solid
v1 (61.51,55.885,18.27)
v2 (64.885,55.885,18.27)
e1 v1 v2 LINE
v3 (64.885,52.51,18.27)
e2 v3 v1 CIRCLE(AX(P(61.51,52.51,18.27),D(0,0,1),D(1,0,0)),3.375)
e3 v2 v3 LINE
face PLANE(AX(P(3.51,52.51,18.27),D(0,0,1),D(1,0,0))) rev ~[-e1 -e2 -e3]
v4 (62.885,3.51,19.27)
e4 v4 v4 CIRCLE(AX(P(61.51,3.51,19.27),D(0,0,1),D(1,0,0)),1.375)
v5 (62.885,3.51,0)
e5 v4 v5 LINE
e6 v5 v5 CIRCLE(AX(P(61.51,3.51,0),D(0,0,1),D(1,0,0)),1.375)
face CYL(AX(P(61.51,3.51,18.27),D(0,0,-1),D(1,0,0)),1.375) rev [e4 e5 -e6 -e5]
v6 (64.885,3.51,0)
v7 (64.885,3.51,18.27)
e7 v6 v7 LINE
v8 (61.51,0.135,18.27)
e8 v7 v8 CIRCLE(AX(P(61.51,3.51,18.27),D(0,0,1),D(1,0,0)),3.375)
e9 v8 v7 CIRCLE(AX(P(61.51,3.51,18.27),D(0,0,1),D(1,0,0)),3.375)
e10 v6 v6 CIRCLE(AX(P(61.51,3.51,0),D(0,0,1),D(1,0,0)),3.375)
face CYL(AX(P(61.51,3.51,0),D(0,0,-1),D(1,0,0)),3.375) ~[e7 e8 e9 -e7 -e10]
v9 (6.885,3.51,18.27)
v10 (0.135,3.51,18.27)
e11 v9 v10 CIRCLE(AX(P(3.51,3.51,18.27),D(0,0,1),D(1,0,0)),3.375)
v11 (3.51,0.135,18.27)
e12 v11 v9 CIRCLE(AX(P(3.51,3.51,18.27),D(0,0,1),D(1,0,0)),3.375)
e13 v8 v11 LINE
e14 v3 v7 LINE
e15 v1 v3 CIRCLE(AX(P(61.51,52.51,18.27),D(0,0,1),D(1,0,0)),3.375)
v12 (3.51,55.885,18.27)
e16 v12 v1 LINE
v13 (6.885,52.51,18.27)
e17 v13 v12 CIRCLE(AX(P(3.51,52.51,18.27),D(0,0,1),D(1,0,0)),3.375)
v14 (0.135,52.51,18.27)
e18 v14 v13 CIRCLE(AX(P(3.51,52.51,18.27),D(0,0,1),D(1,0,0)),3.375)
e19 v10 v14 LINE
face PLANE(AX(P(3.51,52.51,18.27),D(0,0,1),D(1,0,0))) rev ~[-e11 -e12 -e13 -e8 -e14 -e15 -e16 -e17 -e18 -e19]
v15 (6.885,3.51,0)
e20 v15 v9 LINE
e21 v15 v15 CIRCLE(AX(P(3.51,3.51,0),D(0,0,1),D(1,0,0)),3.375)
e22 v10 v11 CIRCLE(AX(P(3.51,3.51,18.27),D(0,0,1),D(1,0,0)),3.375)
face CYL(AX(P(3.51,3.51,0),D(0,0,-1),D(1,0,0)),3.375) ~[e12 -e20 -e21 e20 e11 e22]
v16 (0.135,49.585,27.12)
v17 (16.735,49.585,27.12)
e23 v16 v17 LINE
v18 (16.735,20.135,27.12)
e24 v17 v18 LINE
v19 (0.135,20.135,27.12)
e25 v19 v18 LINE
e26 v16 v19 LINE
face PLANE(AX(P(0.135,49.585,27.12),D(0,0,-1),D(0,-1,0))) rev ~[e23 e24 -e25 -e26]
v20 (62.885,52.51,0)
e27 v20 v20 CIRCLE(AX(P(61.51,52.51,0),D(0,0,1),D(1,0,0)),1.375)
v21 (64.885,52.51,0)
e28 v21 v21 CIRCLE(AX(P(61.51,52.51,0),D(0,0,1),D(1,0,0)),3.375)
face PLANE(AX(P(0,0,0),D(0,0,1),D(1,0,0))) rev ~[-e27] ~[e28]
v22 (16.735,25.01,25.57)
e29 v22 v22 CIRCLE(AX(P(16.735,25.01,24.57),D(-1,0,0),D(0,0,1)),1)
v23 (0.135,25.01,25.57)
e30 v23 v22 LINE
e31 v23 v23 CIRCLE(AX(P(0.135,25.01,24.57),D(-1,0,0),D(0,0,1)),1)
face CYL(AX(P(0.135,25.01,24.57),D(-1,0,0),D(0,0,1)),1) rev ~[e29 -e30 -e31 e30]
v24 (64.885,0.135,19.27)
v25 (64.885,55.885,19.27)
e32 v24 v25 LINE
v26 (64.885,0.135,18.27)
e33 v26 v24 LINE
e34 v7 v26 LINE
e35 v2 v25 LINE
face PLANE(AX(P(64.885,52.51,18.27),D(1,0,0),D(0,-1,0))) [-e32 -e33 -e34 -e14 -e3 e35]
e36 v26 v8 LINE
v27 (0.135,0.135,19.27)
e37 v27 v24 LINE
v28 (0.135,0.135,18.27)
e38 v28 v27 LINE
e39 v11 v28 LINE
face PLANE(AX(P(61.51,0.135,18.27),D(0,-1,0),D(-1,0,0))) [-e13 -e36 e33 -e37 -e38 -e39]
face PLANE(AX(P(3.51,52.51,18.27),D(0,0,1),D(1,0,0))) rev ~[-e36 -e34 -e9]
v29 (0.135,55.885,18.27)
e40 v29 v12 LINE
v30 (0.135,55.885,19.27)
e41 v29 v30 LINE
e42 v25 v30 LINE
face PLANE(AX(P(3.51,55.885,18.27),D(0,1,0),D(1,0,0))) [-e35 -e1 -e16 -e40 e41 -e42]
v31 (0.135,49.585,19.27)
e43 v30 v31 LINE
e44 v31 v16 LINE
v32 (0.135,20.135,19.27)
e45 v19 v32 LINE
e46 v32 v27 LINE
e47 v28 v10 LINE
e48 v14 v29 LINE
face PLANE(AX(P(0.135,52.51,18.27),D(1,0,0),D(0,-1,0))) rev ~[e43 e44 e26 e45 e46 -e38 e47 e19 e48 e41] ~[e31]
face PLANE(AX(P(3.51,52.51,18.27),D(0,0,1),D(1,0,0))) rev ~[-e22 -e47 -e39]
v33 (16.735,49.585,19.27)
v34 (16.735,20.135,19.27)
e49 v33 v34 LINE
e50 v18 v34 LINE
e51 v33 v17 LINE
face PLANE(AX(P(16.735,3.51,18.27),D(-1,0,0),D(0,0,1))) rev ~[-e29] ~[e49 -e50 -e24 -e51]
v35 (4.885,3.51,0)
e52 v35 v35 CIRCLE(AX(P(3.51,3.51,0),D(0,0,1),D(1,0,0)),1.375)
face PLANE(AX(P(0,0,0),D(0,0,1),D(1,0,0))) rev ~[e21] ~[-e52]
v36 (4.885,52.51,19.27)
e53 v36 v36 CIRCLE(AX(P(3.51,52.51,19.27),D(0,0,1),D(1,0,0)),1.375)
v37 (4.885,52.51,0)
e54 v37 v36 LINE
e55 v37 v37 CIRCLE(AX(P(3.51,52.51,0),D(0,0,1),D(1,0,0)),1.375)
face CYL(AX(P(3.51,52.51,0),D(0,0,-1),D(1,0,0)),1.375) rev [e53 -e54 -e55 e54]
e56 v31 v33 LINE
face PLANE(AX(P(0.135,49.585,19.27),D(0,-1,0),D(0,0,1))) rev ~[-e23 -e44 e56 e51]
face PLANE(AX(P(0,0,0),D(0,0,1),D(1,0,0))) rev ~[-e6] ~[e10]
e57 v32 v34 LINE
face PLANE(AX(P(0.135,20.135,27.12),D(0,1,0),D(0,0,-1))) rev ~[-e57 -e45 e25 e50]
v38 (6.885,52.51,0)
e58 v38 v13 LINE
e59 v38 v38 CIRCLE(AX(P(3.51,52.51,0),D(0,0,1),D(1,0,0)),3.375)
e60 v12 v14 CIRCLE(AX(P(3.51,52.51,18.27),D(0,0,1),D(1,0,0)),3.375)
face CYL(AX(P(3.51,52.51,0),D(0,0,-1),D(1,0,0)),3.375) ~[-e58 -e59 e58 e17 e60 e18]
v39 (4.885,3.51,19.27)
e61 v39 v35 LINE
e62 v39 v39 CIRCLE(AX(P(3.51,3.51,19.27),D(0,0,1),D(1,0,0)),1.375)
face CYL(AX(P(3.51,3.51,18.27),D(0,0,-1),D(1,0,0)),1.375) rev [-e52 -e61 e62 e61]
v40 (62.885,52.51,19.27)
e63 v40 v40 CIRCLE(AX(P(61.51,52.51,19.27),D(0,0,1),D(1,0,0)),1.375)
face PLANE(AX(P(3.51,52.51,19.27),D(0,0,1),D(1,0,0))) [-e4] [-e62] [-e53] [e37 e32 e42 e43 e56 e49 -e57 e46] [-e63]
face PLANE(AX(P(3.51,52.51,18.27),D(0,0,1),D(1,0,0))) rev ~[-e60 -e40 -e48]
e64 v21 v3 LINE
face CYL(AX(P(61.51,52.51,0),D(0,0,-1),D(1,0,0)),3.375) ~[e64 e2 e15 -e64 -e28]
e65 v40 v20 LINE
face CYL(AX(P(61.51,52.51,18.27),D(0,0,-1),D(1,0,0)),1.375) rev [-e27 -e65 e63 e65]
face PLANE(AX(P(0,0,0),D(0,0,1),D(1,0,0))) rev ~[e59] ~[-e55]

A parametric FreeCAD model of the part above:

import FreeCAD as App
import Part
import Sketcher

doc = App.newDocument("Part")
params = doc.addObject("Spreadsheet::Sheet", "Params")
for row, (alias, value) in enumerate([
    ("sketch1_diameter", "6.75 mm"),
    ("sketch1_diameter2", "2.75 mm"),
    ("pad1_length", "18.27 mm"),
    ("sketch2_diameter", "2.75 mm"),
    ("sketch2_width", "64.75 mm"),
    ("sketch2_height", "55.75 mm"),
    ("pad2_length", "1 mm"),
    ("sketch3_diameter", "2 mm"),
    ("sketch3_width", "29.45 mm"),
    ("sketch3_height", "7.85 mm"),
    ("pad3_length", "16.6 mm"),
], start=1):
    params.set(f"A{row}", alias)
    params.set(f"B{row}", "=" + value)
    params.setAlias(f"B{row}", alias)

body = doc.addObject("PartDesign::Body", "Body")
body.AllowCompound = True

# Sketch on XY plane
sketch1 = body.newObject("Sketcher::SketchObject", "Sketch")
sketch1.AttachmentSupport = (doc.getObject("XY_Plane"), [""])
sketch1.MapMode = "FlatFace"
sketch1.addGeometry([
    Part.Circle(App.Vector(3.5, 52.5, 0), App.Vector(0, 0, 1), 3.4),  # 0
    Part.Circle(App.Vector(3.5, 52.5, 0), App.Vector(0, 0, 1), 1.4),  # 1
    Part.Circle(App.Vector(3.5, 3.5, 0), App.Vector(0, 0, 1), 3.4),  # 2
    Part.Circle(App.Vector(3.5, 3.5, 0), App.Vector(0, 0, 1), 1.4),  # 3
    Part.Circle(App.Vector(61.5, 52.5, 0), App.Vector(0, 0, 1), 3.4),  # 4
    Part.Circle(App.Vector(61.5, 52.5, 0), App.Vector(0, 0, 1), 1.4),  # 5
    Part.Circle(App.Vector(61.5, 3.5, 0), App.Vector(0, 0, 1), 3.4),  # 6
    Part.Circle(App.Vector(61.5, 3.5, 0), App.Vector(0, 0, 1), 1.4),  # 7
], False)
sketch1.addConstraint([
    Sketcher.Constraint("Coincident", 1, 3, 0, 3),
    Sketcher.Constraint("Coincident", 3, 3, 2, 3),
    Sketcher.Constraint("Coincident", 5, 3, 4, 3),
    Sketcher.Constraint("Coincident", 7, 3, 6, 3),
    Sketcher.Constraint("Equal", 0, 2),
    Sketcher.Constraint("Equal", 1, 3),
    Sketcher.Constraint("Equal", 2, 4),
    Sketcher.Constraint("Equal", 3, 5),
    Sketcher.Constraint("Equal", 4, 6),
    Sketcher.Constraint("Equal", 5, 7),
    Sketcher.Constraint("Horizontal", 1, 3, 4, 3),
    Sketcher.Constraint("Horizontal", 3, 3, 6, 3),
    Sketcher.Constraint("Vertical", 1, 3, 2, 3),
    Sketcher.Constraint("Vertical", 5, 3, 6, 3),
    Sketcher.Constraint("Diameter", 0, 6.75),
    Sketcher.Constraint("Diameter", 1, 2.75),
    Sketcher.Constraint("DistanceY", 2, 3, 0, 3, 49.0),
    Sketcher.Constraint("DistanceX", 0, 3, 4, 3, 58.0),
    Sketcher.Constraint("DistanceX", -1, 1, 0, 3, 3.51),
    Sketcher.Constraint("DistanceY", -1, 1, 0, 3, 52.51),
])
sketch1.setExpression("Constraints[14]", "Params.sketch1_diameter")
sketch1.setExpression("Constraints[15]", "Params.sketch1_diameter2")
pad1 = body.newObject("PartDesign::Pad", "Pad")
pad1.Profile = sketch1
pad1.setExpression("Length", "Params.pad1_length")

# Sketch on XY plane
sketch2 = body.newObject("Sketcher::SketchObject", "Sketch001")
sketch2.AttachmentSupport = (doc.getObject("XY_Plane"), [""])
sketch2.MapMode = "FlatFace"
sketch2.AttachmentOffset = App.Placement(App.Vector(0, 0, 18.27), App.Rotation())
sketch2.addGeometry([
    Part.LineSegment(App.Vector(0.1, 0.1, 0), App.Vector(64.9, 0.1, 0)),  # 0
    Part.LineSegment(App.Vector(64.9, 0.1, 0), App.Vector(64.9, 55.9, 0)),  # 1
    Part.LineSegment(App.Vector(64.9, 55.9, 0), App.Vector(0.1, 55.9, 0)),  # 2
    Part.LineSegment(App.Vector(0.1, 55.9, 0), App.Vector(0.1, 0.1, 0)),  # 3
    Part.Circle(App.Vector(3.5, 52.5, 0), App.Vector(0, 0, 1), 1.4),  # 4
    Part.Circle(App.Vector(61.5, 52.5, 0), App.Vector(0, 0, 1), 1.4),  # 5
    Part.Circle(App.Vector(61.5, 3.5, 0), App.Vector(0, 0, 1), 1.4),  # 6
    Part.Circle(App.Vector(3.5, 3.5, 0), App.Vector(0, 0, 1), 1.4),  # 7
], False)
sketch2.addConstraint([
    Sketcher.Constraint("Coincident", 0, 2, 1, 1),
    Sketcher.Constraint("Coincident", 1, 2, 2, 1),
    Sketcher.Constraint("Coincident", 2, 2, 3, 1),
    Sketcher.Constraint("Coincident", 3, 2, 0, 1),
    Sketcher.Constraint("Horizontal", 0),
    Sketcher.Constraint("Vertical", 1),
    Sketcher.Constraint("Horizontal", 2),
    Sketcher.Constraint("Vertical", 3),
    Sketcher.Constraint("Equal", 4, 5),
    Sketcher.Constraint("Equal", 5, 6),
    Sketcher.Constraint("Equal", 6, 7),
    Sketcher.Constraint("Horizontal", 4, 3, 5, 3),
    Sketcher.Constraint("Horizontal", 6, 3, 7, 3),
    Sketcher.Constraint("Vertical", 5, 3, 6, 3),
    Sketcher.Constraint("Vertical", 4, 3, 7, 3),
    Sketcher.Constraint("Diameter", 4, 2.75),
    Sketcher.Constraint("DistanceX", 4, 3, 5, 3, 58.0),
    Sketcher.Constraint("DistanceY", 6, 3, 5, 3, 49.0),
    Sketcher.Constraint("DistanceX", 0, 1, 0, 2, 64.75),
    Sketcher.Constraint("DistanceY", 1, 1, 1, 2, 55.75),
    Sketcher.Constraint("DistanceX", -1, 1, 4, 3, 3.51),
    Sketcher.Constraint("DistanceY", -1, 1, 4, 3, 52.51),
    Sketcher.Constraint("DistanceX", -1, 1, 0, 2, 64.885),
    Sketcher.Constraint("DistanceY", -1, 1, 0, 2, 0.135),
])
sketch2.setExpression("Constraints[15]", "Params.sketch2_diameter")
sketch2.setExpression("Constraints[18]", "Params.sketch2_width")
sketch2.setExpression("Constraints[19]", "Params.sketch2_height")
pad2 = body.newObject("PartDesign::Pad", "Pad001")
pad2.Profile = sketch2
pad2.setExpression("Length", "Params.pad2_length")

# Sketch on YZ plane
sketch3 = body.newObject("Sketcher::SketchObject", "Sketch002")
sketch3.AttachmentSupport = (doc.getObject("YZ_Plane"), [""])
sketch3.MapMode = "FlatFace"
sketch3.AttachmentOffset = App.Placement(App.Vector(0, 0, 0.135), App.Rotation())
sketch3.addGeometry([
    Part.LineSegment(App.Vector(49.6, 27.1, 0), App.Vector(49.6, 19.3, 0)),  # 0
    Part.LineSegment(App.Vector(49.6, 19.3, 0), App.Vector(20.1, 19.3, 0)),  # 1
    Part.LineSegment(App.Vector(20.1, 19.3, 0), App.Vector(20.1, 27.1, 0)),  # 2
    Part.LineSegment(App.Vector(20.1, 27.1, 0), App.Vector(49.6, 27.1, 0)),  # 3
    Part.Circle(App.Vector(25, 24.6, 0), App.Vector(0, 0, 1), 1),  # 4
], False)
sketch3.addConstraint([
    Sketcher.Constraint("Coincident", 0, 2, 1, 1),
    Sketcher.Constraint("Coincident", 1, 2, 2, 1),
    Sketcher.Constraint("Coincident", 2, 2, 3, 1),
    Sketcher.Constraint("Coincident", 3, 2, 0, 1),
    Sketcher.Constraint("Vertical", 0),
    Sketcher.Constraint("Horizontal", 1),
    Sketcher.Constraint("Vertical", 2),
    Sketcher.Constraint("Horizontal", 3),
    Sketcher.Constraint("Diameter", 4, 2.0),
    Sketcher.Constraint("DistanceX", 1, 2, 1, 1, 29.45),
    Sketcher.Constraint("DistanceY", 0, 2, 0, 1, 7.85),
    Sketcher.Constraint("DistanceY", 0, 2, 4, 3, 5.3),
    Sketcher.Constraint("DistanceX", -1, 1, 4, 3, 25.01),
    Sketcher.Constraint("DistanceY", -1, 1, 4, 3, 24.57),
    Sketcher.Constraint("DistanceX", -1, 1, 0, 2, 49.585),
])
sketch3.setExpression("Constraints[8]", "Params.sketch3_diameter")
sketch3.setExpression("Constraints[9]", "Params.sketch3_width")
sketch3.setExpression("Constraints[10]", "Params.sketch3_height")
pad3 = body.newObject("PartDesign::Pad", "Pad002")
pad3.Profile = sketch3
pad3.setExpression("Length", "Params.pad3_length")

doc.recompute()
